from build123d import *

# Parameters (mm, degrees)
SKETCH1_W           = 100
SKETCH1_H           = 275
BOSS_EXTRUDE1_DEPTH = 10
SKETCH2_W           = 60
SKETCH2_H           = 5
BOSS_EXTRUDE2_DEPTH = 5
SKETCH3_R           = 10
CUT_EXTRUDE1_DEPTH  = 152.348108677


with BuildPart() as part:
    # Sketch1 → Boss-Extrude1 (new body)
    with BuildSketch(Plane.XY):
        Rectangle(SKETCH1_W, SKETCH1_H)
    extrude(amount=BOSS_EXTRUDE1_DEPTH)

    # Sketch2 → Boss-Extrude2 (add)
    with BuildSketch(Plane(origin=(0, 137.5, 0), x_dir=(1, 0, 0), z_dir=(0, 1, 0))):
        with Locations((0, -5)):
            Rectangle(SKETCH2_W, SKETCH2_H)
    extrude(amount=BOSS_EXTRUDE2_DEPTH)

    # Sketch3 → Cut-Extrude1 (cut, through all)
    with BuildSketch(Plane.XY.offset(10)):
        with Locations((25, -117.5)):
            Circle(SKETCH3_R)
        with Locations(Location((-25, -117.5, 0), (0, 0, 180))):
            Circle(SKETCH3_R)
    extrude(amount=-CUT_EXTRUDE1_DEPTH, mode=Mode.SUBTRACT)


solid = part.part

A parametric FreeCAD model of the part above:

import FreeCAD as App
import Part
import Sketcher

V = App.Vector
Q = App.Units.Quantity

doc = App.newDocument("Part")
body = doc.addObject("PartDesign::Body", "Body")

sketch1 = body.newObject("Sketcher::SketchObject", "Sketch")
sketch1.AttachmentSupport = (doc.getObject("XY_Plane"), [""])
sketch1.MapMode = "FlatFace"
sketch1.addGeometry([
    Part.LineSegment(V(-50, 137.5, 0), V(-50, -137.5, 0)),
    Part.LineSegment(V(-50, -137.5, 0), V(50, -137.5, 0)),
    Part.LineSegment(V(50, -137.5, 0), V(50, 137.5, 0)),
    Part.LineSegment(V(50, 137.5, 0), V(-50, 137.5, 0)),
], False)
sketch1.addConstraint([
    Sketcher.Constraint("Coincident", 0, 2, 1, 1),
    Sketcher.Constraint("Coincident", 1, 2, 2, 1),
    Sketcher.Constraint("Coincident", 2, 2, 3, 1),
    Sketcher.Constraint("Coincident", 3, 2, 0, 1),
    Sketcher.Constraint("Vertical", 0),
    Sketcher.Constraint("Horizontal", 1),
    Sketcher.Constraint("Vertical", 2),
    Sketcher.Constraint("Horizontal", 3),
    Sketcher.Constraint("Symmetric", 0, 2, 2, 2, -1, 1),
    Sketcher.Constraint("DistanceX", 1, 1, 1, 2, Q("100 mm")),
    Sketcher.Constraint("DistanceY", 0, 2, 0, 1, Q("275 mm")),
])
pad1 = body.newObject("PartDesign::Pad", "Pad")
pad1.Profile = sketch1
pad1.Length = 10

sketch2 = body.newObject("Sketcher::SketchObject", "Sketch001")
sketch2.AttachmentSupport = (doc.getObject("XZ_Plane"), [""])
sketch2.MapMode = "FlatFace"
sketch2.AttachmentOffset = App.Placement(V(0, 0, -137.5), App.Rotation())
sketch2.addGeometry([
    Part.LineSegment(V(-30, 2.5, 0), V(-30, 7.5, 0)),
    Part.LineSegment(V(-30, 7.5, 0), V(30, 7.5, 0)),
    Part.LineSegment(V(30, 7.5, 0), V(30, 2.5, 0)),
    Part.LineSegment(V(30, 2.5, 0), V(-30, 2.5, 0)),
], False)
sketch2.addConstraint([
    Sketcher.Constraint("Coincident", 0, 2, 1, 1),
    Sketcher.Constraint("Coincident", 1, 2, 2, 1),
    Sketcher.Constraint("Coincident", 2, 2, 3, 1),
    Sketcher.Constraint("Coincident", 3, 2, 0, 1),
    Sketcher.Constraint("Vertical", 0),
    Sketcher.Constraint("Horizontal", 1),
    Sketcher.Constraint("Vertical", 2),
    Sketcher.Constraint("Horizontal", 3),
    Sketcher.Constraint("DistanceX", 1, 1, 1, 2, Q("60 mm")),
    Sketcher.Constraint("DistanceY", 0, 1, 0, 2, Q("5 mm")),
    Sketcher.Constraint("DistanceX", 0, 2, -1, 1, Q("30 mm")),
    Sketcher.Constraint("DistanceY", -1, 1, 0, 2, Q("7.5 mm")),
])
pad2 = body.newObject("PartDesign::Pad", "Pad001")
pad2.Profile = sketch2
pad2.Length = 5
pad2.Reversed = True

sketch3 = body.newObject("Sketcher::SketchObject", "Sketch002")
sketch3.AttachmentSupport = (doc.getObject("XY_Plane"), [""])
sketch3.MapMode = "FlatFace"
sketch3.AttachmentOffset = App.Placement(V(0, 0, 10), App.Rotation())
sketch3.addGeometry([
    Part.Circle(V(25, -117.5, 0), V(0, 0, 1), 10),
    Part.Circle(V(-25, -117.5, 0), V(0, 0, 1), 10),
], False)
sketch3.addConstraint([
    Sketcher.Constraint("Equal", 0, 1),
    Sketcher.Constraint("Symmetric", 0, 3, 1, 3, -2),
    Sketcher.Constraint("Diameter", 0, Q("20 mm")),
    Sketcher.Constraint("DistanceX", -1, 1, 0, 3, Q("25 mm")),
    Sketcher.Constraint("DistanceY", 0, 3, -1, 1, Q("117.5 mm")),
])
pocket1 = body.newObject("PartDesign::Pocket", "Pocket")
pocket1.Profile = sketch3
pocket1.Type = "ThroughAll"

doc.recompute()
